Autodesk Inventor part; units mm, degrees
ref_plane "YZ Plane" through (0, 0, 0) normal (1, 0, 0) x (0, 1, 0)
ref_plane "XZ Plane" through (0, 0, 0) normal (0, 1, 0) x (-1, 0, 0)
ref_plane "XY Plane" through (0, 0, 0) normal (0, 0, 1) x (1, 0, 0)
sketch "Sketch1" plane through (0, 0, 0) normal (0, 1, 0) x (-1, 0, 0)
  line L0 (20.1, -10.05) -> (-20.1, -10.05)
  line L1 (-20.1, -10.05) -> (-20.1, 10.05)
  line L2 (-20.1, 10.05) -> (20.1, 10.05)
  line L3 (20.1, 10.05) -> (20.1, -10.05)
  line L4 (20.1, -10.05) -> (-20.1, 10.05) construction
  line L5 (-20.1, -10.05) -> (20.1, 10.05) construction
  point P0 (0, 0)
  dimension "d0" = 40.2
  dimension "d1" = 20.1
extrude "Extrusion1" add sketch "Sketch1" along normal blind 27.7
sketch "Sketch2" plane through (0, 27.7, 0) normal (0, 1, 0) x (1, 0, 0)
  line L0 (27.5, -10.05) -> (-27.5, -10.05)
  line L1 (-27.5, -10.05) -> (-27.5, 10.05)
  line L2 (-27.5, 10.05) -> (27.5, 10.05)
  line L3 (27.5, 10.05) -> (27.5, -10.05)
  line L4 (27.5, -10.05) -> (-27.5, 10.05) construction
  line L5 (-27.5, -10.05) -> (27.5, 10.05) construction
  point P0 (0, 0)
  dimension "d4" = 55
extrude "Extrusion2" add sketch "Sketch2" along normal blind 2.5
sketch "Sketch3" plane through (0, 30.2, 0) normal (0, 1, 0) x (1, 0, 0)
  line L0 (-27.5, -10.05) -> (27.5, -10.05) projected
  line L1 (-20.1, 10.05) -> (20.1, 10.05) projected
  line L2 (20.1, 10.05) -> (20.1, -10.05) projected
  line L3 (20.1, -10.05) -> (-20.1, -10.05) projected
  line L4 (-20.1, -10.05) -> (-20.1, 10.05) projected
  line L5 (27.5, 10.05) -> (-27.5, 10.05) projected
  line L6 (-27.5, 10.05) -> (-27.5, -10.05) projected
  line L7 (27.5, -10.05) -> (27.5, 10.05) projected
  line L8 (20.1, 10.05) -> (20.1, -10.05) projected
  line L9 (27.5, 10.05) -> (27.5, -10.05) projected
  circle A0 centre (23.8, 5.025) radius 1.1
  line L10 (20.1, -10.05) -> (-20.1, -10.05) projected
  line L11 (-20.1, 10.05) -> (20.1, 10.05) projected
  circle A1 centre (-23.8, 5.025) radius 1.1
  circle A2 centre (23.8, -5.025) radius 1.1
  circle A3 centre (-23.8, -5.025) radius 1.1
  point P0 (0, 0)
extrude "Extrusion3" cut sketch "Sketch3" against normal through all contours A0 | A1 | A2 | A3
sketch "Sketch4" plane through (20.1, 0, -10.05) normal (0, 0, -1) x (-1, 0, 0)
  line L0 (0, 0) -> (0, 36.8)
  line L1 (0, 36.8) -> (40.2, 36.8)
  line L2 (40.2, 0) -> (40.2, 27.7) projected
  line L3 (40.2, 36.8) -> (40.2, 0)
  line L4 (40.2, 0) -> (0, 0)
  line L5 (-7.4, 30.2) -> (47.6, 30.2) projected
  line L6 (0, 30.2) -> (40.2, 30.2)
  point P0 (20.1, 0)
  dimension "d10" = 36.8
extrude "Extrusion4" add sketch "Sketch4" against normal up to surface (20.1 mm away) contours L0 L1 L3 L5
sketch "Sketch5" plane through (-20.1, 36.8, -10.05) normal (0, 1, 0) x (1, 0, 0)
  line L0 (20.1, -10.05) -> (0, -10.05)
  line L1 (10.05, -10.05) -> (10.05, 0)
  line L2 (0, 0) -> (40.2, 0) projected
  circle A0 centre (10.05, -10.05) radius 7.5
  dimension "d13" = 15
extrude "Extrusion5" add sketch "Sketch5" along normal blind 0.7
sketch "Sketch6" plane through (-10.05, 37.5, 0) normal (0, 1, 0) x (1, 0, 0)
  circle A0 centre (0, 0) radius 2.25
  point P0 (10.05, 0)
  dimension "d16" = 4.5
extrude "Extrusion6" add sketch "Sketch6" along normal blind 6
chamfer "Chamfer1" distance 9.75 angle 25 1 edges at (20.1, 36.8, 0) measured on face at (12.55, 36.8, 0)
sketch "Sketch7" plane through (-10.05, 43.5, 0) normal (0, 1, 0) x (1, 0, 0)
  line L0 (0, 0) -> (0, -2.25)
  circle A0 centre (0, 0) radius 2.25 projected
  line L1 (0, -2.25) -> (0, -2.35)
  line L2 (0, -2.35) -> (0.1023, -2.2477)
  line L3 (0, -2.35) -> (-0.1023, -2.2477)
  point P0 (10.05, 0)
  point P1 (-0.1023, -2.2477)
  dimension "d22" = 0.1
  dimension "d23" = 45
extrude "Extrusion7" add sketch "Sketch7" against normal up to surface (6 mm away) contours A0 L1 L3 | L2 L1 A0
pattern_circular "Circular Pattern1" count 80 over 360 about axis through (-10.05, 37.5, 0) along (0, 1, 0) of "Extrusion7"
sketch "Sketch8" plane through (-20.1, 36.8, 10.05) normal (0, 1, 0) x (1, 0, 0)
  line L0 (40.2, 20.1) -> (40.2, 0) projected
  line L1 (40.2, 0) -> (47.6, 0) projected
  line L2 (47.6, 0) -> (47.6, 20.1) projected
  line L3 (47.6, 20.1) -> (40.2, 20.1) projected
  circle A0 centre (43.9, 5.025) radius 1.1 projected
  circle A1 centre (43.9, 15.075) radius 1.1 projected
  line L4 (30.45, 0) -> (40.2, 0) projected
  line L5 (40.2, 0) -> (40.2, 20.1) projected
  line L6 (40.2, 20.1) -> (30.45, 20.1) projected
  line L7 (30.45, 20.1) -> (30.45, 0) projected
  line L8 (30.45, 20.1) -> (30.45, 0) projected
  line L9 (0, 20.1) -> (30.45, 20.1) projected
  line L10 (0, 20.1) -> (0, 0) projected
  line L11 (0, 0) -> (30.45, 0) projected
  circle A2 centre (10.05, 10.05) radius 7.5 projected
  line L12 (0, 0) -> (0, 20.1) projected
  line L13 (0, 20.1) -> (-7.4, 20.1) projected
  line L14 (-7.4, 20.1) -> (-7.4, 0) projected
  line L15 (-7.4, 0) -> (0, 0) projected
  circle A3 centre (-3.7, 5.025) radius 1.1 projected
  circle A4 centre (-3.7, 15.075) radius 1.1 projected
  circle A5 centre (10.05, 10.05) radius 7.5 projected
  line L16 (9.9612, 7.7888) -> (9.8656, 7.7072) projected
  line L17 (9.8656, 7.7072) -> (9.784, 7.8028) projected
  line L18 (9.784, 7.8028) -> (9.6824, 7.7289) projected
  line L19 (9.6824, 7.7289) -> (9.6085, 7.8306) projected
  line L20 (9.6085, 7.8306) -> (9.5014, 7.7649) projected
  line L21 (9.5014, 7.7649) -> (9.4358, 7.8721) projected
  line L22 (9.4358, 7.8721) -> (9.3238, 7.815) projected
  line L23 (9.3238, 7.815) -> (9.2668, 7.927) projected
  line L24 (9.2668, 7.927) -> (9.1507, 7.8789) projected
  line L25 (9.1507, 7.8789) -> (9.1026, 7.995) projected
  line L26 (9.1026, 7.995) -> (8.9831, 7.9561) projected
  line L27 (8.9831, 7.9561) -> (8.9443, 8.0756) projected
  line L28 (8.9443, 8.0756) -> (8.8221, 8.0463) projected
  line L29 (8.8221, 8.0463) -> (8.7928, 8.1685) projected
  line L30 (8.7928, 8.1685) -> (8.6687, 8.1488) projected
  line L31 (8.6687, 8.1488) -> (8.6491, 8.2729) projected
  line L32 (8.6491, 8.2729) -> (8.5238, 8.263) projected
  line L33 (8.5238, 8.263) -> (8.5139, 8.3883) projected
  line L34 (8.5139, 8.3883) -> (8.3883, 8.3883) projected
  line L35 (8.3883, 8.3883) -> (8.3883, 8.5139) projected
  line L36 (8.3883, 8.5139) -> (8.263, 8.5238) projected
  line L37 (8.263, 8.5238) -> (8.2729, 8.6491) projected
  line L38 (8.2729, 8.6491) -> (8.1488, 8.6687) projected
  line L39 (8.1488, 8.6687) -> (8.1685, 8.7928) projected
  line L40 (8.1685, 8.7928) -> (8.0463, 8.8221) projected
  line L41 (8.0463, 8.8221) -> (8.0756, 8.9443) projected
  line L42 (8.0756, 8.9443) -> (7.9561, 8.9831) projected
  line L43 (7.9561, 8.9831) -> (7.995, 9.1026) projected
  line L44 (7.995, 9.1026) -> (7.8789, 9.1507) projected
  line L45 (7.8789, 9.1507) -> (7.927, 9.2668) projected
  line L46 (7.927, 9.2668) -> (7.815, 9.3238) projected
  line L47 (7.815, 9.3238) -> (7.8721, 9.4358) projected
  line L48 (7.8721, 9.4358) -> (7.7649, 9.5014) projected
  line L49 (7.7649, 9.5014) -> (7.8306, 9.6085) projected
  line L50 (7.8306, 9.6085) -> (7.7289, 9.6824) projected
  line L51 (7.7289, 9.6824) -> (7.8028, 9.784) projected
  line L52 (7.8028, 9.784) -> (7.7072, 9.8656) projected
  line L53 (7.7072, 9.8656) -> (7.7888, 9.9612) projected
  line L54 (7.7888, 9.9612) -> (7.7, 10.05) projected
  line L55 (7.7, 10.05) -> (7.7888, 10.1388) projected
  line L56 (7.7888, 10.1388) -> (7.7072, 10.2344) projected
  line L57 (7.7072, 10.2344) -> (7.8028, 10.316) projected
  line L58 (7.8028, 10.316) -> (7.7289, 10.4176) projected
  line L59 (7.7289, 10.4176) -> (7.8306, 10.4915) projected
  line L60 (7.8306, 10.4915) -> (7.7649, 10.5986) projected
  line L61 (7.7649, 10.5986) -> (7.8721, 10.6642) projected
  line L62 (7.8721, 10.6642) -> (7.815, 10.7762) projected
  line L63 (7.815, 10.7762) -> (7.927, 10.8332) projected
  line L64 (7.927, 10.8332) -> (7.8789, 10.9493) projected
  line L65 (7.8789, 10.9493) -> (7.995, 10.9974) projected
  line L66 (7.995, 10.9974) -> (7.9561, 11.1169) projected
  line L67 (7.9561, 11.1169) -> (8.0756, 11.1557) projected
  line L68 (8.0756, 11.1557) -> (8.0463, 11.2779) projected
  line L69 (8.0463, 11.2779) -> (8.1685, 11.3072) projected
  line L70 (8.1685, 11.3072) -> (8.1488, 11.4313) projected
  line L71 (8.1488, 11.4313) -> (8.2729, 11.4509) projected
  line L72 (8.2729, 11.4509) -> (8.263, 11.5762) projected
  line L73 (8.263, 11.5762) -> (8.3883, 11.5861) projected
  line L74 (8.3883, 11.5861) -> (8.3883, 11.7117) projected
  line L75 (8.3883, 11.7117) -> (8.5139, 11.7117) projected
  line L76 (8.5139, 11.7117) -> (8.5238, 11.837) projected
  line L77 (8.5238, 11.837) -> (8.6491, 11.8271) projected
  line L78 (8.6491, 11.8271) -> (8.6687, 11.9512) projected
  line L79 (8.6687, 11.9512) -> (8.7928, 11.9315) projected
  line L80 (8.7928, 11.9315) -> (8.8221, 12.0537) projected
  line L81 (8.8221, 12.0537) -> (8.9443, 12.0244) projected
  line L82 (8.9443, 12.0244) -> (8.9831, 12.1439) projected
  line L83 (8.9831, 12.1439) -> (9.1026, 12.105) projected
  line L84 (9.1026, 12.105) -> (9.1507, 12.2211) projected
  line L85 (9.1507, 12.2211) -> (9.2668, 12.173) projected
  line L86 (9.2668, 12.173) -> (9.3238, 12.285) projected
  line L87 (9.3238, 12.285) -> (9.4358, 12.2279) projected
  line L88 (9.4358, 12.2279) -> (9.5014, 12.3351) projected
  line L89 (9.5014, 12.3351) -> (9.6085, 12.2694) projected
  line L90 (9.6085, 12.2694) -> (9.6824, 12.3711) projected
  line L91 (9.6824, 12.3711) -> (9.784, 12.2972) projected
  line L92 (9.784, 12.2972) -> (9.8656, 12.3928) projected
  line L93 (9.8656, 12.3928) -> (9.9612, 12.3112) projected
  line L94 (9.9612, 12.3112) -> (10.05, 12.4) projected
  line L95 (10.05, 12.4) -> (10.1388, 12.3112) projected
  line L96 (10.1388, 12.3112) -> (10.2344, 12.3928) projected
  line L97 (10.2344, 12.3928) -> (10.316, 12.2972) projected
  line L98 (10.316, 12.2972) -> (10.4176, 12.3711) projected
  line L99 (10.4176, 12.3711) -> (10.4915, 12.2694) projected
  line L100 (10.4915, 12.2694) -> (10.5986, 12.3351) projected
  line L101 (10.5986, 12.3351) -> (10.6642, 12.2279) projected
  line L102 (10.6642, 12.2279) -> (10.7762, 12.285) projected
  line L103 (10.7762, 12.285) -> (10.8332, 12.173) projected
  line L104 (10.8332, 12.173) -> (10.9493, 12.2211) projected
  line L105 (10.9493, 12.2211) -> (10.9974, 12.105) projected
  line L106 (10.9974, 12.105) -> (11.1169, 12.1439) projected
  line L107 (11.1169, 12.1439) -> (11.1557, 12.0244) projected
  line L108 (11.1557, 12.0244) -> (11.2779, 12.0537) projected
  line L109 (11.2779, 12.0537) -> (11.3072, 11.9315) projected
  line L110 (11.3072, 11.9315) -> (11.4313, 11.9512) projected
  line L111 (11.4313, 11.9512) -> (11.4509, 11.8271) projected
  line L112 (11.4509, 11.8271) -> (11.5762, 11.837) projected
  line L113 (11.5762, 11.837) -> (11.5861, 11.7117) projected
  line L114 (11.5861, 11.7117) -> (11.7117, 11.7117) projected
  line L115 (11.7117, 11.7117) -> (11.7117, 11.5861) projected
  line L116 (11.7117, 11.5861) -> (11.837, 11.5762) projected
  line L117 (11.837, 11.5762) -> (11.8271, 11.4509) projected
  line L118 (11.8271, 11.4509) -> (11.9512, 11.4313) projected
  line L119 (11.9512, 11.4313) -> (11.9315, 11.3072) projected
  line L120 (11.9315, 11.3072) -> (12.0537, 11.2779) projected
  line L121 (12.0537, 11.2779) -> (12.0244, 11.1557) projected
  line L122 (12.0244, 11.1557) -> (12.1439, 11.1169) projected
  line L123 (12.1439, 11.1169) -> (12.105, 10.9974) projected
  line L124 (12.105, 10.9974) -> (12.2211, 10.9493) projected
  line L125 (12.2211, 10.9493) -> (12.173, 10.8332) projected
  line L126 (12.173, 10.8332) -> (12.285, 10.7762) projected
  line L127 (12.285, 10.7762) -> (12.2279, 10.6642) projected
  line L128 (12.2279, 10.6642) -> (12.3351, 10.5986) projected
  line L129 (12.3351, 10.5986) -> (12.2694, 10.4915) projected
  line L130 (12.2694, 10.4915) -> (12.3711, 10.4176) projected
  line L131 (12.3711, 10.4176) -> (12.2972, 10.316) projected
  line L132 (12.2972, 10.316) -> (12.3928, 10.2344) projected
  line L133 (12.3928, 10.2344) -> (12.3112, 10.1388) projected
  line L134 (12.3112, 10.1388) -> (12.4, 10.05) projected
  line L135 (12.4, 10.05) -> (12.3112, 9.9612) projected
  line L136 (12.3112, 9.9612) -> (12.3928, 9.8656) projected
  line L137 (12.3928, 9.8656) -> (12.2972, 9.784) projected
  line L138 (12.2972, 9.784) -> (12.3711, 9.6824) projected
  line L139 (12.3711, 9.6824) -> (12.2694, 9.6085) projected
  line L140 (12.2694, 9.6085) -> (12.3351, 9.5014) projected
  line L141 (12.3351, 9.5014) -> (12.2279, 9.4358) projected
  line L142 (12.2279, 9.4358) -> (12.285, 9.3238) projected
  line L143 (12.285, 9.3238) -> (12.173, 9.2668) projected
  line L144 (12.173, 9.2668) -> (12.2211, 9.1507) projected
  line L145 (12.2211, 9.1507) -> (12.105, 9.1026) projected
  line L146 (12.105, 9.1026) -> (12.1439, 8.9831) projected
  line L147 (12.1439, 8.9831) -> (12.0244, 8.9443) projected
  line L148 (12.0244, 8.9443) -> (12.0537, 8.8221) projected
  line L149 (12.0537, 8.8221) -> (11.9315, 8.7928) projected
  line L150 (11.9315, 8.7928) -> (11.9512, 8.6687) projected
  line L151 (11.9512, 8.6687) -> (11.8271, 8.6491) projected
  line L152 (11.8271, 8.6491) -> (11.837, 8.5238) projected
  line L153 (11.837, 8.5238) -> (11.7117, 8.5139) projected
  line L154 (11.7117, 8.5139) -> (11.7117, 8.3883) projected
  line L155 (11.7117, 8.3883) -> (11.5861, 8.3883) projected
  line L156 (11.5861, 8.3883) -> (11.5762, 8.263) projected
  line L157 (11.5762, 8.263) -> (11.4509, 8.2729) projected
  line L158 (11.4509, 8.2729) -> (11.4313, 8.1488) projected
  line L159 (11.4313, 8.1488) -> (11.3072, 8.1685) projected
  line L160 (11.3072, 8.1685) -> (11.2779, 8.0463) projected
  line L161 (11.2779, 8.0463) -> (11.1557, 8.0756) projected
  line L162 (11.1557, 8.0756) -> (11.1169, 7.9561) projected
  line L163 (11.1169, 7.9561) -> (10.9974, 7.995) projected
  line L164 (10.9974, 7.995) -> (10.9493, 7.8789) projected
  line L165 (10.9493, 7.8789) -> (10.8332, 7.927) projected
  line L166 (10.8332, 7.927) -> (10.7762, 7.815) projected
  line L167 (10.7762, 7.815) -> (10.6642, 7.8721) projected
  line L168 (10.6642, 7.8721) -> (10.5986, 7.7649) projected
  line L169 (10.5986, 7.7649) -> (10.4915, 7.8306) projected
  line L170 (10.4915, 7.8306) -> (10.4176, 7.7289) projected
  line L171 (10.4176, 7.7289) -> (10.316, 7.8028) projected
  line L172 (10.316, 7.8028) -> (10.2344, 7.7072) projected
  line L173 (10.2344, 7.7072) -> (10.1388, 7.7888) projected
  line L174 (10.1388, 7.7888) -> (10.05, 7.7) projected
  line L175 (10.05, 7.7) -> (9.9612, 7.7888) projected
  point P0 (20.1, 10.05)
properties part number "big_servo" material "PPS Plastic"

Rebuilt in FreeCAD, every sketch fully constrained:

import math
import FreeCAD as App
import Part
import Sketcher

V = App.Vector


def edges_at(feature, points):
    """Names of the edges that pass closest to the given points."""
    edges = feature.Shape.Edges
    near = lambda p: min(range(len(edges)), key=lambda i: edges[i].distToShape(Part.Vertex(*p))[0])
    return sorted({f"Edge{near(p) + 1}" for p in points})


def add_polygon(sketch, points):
    """Adds a closed chain of lines whose ends are joined by coincident constraints."""
    first, n = sketch.GeometryCount, len(points)
    for a, b in zip(points, points[1:] + points[:1]):
        sketch.addGeometry(Part.LineSegment(App.Vector(*a, 0), App.Vector(*b, 0)), False)
    for i in range(n):
        sketch.addConstraint(Sketcher.Constraint("Coincident", first + i, 2, first + (i + 1) % n, 1))

doc = App.newDocument("Part")
body = doc.addObject("PartDesign::Body", "Body")

# Sketch on XZ plane
sketch1 = body.newObject("Sketcher::SketchObject", "Sketch")
sketch1.AttachmentSupport = (doc.getObject("XZ_Plane"), [""])
sketch1.MapMode = "FlatFace"
add_polygon(sketch1, [(20, -10), (-20, -10), (-20, 10), (20, 10)])  # lines 0-3
sketch1.addConstraint([
    Sketcher.Constraint("Horizontal", 0),
    Sketcher.Constraint("Vertical", 1),
    Sketcher.Constraint("Horizontal", 2),
    Sketcher.Constraint("Vertical", 3),
    Sketcher.Constraint("Symmetric", 0, 2, 2, 2, -1, 1),
    Sketcher.Constraint("DistanceX", 0, 2, 0, 1, 40.2),
    Sketcher.Constraint("DistanceY", 1, 1, 1, 2, 20.1),
])
pad1 = body.newObject("PartDesign::Pad", "Pad")
pad1.Profile = sketch1
pad1.Length = 27.7
pad1.Reversed = True

# Sketch on XZ plane
sketch2 = body.newObject("Sketcher::SketchObject", "Sketch001")
sketch2.AttachmentSupport = (doc.getObject("XZ_Plane"), [""])
sketch2.MapMode = "FlatFace"
sketch2.AttachmentOffset = App.Placement(V(0, 0, -27.7), App.Rotation())
add_polygon(sketch2, [(-28, 10), (28, 10), (28, -10), (-28, -10)])  # lines 0-3
sketch2.addConstraint([
    Sketcher.Constraint("Horizontal", 0),
    Sketcher.Constraint("Vertical", 1),
    Sketcher.Constraint("Horizontal", 2),
    Sketcher.Constraint("Vertical", 3),
    Sketcher.Constraint("Symmetric", 0, 2, 2, 2, -1, 1),
    Sketcher.Constraint("DistanceX", 0, 1, 0, 2, 55.0),
    Sketcher.Constraint("DistanceY", 1, 2, 1, 1, 20.1),
])
pad2 = body.newObject("PartDesign::Pad", "Pad001")
pad2.Profile = sketch2
pad2.Length = 2.5
pad2.Reversed = True

# Sketch on XZ plane
sketch3 = body.newObject("Sketcher::SketchObject", "Sketch002")
sketch3.AttachmentSupport = (doc.getObject("XZ_Plane"), [""])
sketch3.MapMode = "FlatFace"
sketch3.AttachmentOffset = App.Placement(V(0, 0, -30.2), App.Rotation())
sketch3.addGeometry([
    Part.Circle(V(23.8, -5, 0), V(0, 0, 1), 1.1),
    Part.Circle(V(-23.8, -5, 0), V(0, 0, 1), 1.1),
    Part.Circle(V(23.8, 5, 0), V(0, 0, 1), 1.1),
    Part.Circle(V(-23.8, 5, 0), V(0, 0, 1), 1.1),
], False)
sketch3.addConstraint([
    Sketcher.Constraint("Equal", 0, 1),
    Sketcher.Constraint("Equal", 1, 2),
    Sketcher.Constraint("Equal", 2, 3),
    Sketcher.Constraint("Symmetric", 1, 3, 2, 3, -1, 1),
    Sketcher.Constraint("Symmetric", 0, 3, 3, 3, -1, 1),
    Sketcher.Constraint("Symmetric", 0, 3, 1, 3, -2),
    Sketcher.Constraint("Diameter", 0, 2.2),
    Sketcher.Constraint("DistanceX", -1, 1, 0, 3, 23.8),
    Sketcher.Constraint("DistanceY", 0, 3, 2, 3, 10.05),
])
pocket1 = body.newObject("PartDesign::Pocket", "Pocket")
pocket1.Profile = sketch3
pocket1.Type = "ThroughAll"
pocket1.Reversed = True

# Sketch on XY plane
sketch4 = body.newObject("Sketcher::SketchObject", "Sketch003")
sketch4.AttachmentSupport = (doc.getObject("XY_Plane"), [""])
sketch4.MapMode = "FlatFace"
sketch4.AttachmentOffset = App.Placement(V(0, 0, -10.05), App.Rotation())
add_polygon(sketch4, [(20, 37), (20, 30), (-20, 30), (-20, 37)])  # lines 0-3
sketch4.addConstraint([
    Sketcher.Constraint("Vertical", 0),
    Sketcher.Constraint("Horizontal", 1),
    Sketcher.Constraint("Vertical", 2),
    Sketcher.Constraint("Horizontal", 3),
    Sketcher.Constraint("DistanceY", -1, 1, 2, 2, 36.8),
    Sketcher.Constraint("DistanceX", 1, 2, 1, 1, 40.2),
    Sketcher.Constraint("DistanceY", 0, 2, 0, 1, 6.6),
    Sketcher.Constraint("DistanceX", -1, 1, 0, 2, 20.1),
])
pad3 = body.newObject("PartDesign::Pad", "Pad002")
pad3.Profile = sketch4
pad3.Length = 20.1

# Sketch on XZ plane
sketch5 = body.newObject("Sketcher::SketchObject", "Sketch004")
sketch5.AttachmentSupport = (doc.getObject("XZ_Plane"), [""])
sketch5.MapMode = "FlatFace"
sketch5.AttachmentOffset = App.Placement(V(0, 0, -36.8), App.Rotation())
sketch5.addGeometry(Part.Circle(V(-10, 0, 0), V(0, 0, 1), 8), False)
sketch5.addConstraint([
    Sketcher.Constraint("PointOnObject", 0, 3, -1),
    Sketcher.Constraint("Diameter", 0, 15.0),
    Sketcher.Constraint("DistanceX", 0, 3, -1, 1, 10.05),
])
pad4 = body.newObject("PartDesign::Pad", "Pad003")
pad4.Profile = sketch5
pad4.Length = 0.7
pad4.Reversed = True

# Sketch on XZ plane
sketch6 = body.newObject("Sketcher::SketchObject", "Sketch005")
sketch6.AttachmentSupport = (doc.getObject("XZ_Plane"), [""])
sketch6.MapMode = "FlatFace"
sketch6.AttachmentOffset = App.Placement(V(0, 0, -37.5), App.Rotation())
sketch6.addGeometry(Part.Circle(V(-10.1, 0, 0), V(0, 0, 1), 2.2), False)
sketch6.addConstraint([
    Sketcher.Constraint("PointOnObject", 0, 3, -1),
    Sketcher.Constraint("Diameter", 0, 4.5),
    Sketcher.Constraint("DistanceX", 0, 3, -1, 1, 10.05),
])
pad5 = body.newObject("PartDesign::Pad", "Pad004")
pad5.Profile = sketch6
pad5.Length = 6
pad5.Reversed = True
doc.recompute()

chamfer = body.newObject("PartDesign::Chamfer", "Chamfer")
chamfer.Base = (pad5, edges_at(pad5, [(20.1, 36.8, 0)]))
chamfer.ChamferType = "Distance and Angle"
chamfer.Size = 9.75
chamfer.Angle = 25

# Sketch on XZ plane
sketch7 = body.newObject("Sketcher::SketchObject", "Sketch006")
sketch7.AttachmentSupport = (doc.getObject("XZ_Plane"), [""])
sketch7.MapMode = "FlatFace"
sketch7.AttachmentOffset = App.Placement(V(0, 0, -43.5), App.Rotation())
sketch7.addGeometry([
    Part.LineSegment(V(-10.15, 2.25, 0), V(-10.05, 2.35, 0)),
    Part.LineSegment(V(-10.05, 2.35, 0), V(-9.95, 2.25, 0)),
    Part.ArcOfCircle(Part.Circle(V(-10.05, 0, 0), V(0, 0, 1), 2.25), math.radians(87.39), math.radians(92.61)),
], False)
sketch7.addConstraint([
    Sketcher.Constraint("Coincident", 0, 2, 1, 1),
    Sketcher.Constraint("Coincident", 1, 2, 2, 1),
    Sketcher.Constraint("Coincident", 2, 2, 0, 1),
    Sketcher.Constraint("PointOnObject", 2, 3, -1),
    Sketcher.Constraint("Perpendicular", 0, 1),
    Sketcher.Constraint("Horizontal", 1, 2, 2, 2),
    Sketcher.Constraint("Vertical", 2, 3, 0, 2),
    Sketcher.Constraint("Radius", 2, 2.25),
    Sketcher.Constraint("DistanceX", 2, 3, -1, 1, 10.05),
    Sketcher.Constraint("DistanceY", -1, 1, 0, 2, 2.35),
])
pad6 = body.newObject("PartDesign::Pad", "Pad005")
pad6.Profile = sketch7
pad6.Length = 6
doc.recompute()

datumline = body.newObject("PartDesign::Line", "DatumLine")
datumline.Placement = App.Placement(V(-10.05, 0, 0), App.Rotation(V(0, 0, 1), V(0, 1, 0)))
polarpattern = body.newObject("PartDesign::PolarPattern", "PolarPattern")
polarpattern.Originals = [pad6]
polarpattern.Axis = (datumline, [""])
polarpattern.Angle = 360
polarpattern.Occurrences = 80
body.Tip = polarpattern

doc.recompute()
